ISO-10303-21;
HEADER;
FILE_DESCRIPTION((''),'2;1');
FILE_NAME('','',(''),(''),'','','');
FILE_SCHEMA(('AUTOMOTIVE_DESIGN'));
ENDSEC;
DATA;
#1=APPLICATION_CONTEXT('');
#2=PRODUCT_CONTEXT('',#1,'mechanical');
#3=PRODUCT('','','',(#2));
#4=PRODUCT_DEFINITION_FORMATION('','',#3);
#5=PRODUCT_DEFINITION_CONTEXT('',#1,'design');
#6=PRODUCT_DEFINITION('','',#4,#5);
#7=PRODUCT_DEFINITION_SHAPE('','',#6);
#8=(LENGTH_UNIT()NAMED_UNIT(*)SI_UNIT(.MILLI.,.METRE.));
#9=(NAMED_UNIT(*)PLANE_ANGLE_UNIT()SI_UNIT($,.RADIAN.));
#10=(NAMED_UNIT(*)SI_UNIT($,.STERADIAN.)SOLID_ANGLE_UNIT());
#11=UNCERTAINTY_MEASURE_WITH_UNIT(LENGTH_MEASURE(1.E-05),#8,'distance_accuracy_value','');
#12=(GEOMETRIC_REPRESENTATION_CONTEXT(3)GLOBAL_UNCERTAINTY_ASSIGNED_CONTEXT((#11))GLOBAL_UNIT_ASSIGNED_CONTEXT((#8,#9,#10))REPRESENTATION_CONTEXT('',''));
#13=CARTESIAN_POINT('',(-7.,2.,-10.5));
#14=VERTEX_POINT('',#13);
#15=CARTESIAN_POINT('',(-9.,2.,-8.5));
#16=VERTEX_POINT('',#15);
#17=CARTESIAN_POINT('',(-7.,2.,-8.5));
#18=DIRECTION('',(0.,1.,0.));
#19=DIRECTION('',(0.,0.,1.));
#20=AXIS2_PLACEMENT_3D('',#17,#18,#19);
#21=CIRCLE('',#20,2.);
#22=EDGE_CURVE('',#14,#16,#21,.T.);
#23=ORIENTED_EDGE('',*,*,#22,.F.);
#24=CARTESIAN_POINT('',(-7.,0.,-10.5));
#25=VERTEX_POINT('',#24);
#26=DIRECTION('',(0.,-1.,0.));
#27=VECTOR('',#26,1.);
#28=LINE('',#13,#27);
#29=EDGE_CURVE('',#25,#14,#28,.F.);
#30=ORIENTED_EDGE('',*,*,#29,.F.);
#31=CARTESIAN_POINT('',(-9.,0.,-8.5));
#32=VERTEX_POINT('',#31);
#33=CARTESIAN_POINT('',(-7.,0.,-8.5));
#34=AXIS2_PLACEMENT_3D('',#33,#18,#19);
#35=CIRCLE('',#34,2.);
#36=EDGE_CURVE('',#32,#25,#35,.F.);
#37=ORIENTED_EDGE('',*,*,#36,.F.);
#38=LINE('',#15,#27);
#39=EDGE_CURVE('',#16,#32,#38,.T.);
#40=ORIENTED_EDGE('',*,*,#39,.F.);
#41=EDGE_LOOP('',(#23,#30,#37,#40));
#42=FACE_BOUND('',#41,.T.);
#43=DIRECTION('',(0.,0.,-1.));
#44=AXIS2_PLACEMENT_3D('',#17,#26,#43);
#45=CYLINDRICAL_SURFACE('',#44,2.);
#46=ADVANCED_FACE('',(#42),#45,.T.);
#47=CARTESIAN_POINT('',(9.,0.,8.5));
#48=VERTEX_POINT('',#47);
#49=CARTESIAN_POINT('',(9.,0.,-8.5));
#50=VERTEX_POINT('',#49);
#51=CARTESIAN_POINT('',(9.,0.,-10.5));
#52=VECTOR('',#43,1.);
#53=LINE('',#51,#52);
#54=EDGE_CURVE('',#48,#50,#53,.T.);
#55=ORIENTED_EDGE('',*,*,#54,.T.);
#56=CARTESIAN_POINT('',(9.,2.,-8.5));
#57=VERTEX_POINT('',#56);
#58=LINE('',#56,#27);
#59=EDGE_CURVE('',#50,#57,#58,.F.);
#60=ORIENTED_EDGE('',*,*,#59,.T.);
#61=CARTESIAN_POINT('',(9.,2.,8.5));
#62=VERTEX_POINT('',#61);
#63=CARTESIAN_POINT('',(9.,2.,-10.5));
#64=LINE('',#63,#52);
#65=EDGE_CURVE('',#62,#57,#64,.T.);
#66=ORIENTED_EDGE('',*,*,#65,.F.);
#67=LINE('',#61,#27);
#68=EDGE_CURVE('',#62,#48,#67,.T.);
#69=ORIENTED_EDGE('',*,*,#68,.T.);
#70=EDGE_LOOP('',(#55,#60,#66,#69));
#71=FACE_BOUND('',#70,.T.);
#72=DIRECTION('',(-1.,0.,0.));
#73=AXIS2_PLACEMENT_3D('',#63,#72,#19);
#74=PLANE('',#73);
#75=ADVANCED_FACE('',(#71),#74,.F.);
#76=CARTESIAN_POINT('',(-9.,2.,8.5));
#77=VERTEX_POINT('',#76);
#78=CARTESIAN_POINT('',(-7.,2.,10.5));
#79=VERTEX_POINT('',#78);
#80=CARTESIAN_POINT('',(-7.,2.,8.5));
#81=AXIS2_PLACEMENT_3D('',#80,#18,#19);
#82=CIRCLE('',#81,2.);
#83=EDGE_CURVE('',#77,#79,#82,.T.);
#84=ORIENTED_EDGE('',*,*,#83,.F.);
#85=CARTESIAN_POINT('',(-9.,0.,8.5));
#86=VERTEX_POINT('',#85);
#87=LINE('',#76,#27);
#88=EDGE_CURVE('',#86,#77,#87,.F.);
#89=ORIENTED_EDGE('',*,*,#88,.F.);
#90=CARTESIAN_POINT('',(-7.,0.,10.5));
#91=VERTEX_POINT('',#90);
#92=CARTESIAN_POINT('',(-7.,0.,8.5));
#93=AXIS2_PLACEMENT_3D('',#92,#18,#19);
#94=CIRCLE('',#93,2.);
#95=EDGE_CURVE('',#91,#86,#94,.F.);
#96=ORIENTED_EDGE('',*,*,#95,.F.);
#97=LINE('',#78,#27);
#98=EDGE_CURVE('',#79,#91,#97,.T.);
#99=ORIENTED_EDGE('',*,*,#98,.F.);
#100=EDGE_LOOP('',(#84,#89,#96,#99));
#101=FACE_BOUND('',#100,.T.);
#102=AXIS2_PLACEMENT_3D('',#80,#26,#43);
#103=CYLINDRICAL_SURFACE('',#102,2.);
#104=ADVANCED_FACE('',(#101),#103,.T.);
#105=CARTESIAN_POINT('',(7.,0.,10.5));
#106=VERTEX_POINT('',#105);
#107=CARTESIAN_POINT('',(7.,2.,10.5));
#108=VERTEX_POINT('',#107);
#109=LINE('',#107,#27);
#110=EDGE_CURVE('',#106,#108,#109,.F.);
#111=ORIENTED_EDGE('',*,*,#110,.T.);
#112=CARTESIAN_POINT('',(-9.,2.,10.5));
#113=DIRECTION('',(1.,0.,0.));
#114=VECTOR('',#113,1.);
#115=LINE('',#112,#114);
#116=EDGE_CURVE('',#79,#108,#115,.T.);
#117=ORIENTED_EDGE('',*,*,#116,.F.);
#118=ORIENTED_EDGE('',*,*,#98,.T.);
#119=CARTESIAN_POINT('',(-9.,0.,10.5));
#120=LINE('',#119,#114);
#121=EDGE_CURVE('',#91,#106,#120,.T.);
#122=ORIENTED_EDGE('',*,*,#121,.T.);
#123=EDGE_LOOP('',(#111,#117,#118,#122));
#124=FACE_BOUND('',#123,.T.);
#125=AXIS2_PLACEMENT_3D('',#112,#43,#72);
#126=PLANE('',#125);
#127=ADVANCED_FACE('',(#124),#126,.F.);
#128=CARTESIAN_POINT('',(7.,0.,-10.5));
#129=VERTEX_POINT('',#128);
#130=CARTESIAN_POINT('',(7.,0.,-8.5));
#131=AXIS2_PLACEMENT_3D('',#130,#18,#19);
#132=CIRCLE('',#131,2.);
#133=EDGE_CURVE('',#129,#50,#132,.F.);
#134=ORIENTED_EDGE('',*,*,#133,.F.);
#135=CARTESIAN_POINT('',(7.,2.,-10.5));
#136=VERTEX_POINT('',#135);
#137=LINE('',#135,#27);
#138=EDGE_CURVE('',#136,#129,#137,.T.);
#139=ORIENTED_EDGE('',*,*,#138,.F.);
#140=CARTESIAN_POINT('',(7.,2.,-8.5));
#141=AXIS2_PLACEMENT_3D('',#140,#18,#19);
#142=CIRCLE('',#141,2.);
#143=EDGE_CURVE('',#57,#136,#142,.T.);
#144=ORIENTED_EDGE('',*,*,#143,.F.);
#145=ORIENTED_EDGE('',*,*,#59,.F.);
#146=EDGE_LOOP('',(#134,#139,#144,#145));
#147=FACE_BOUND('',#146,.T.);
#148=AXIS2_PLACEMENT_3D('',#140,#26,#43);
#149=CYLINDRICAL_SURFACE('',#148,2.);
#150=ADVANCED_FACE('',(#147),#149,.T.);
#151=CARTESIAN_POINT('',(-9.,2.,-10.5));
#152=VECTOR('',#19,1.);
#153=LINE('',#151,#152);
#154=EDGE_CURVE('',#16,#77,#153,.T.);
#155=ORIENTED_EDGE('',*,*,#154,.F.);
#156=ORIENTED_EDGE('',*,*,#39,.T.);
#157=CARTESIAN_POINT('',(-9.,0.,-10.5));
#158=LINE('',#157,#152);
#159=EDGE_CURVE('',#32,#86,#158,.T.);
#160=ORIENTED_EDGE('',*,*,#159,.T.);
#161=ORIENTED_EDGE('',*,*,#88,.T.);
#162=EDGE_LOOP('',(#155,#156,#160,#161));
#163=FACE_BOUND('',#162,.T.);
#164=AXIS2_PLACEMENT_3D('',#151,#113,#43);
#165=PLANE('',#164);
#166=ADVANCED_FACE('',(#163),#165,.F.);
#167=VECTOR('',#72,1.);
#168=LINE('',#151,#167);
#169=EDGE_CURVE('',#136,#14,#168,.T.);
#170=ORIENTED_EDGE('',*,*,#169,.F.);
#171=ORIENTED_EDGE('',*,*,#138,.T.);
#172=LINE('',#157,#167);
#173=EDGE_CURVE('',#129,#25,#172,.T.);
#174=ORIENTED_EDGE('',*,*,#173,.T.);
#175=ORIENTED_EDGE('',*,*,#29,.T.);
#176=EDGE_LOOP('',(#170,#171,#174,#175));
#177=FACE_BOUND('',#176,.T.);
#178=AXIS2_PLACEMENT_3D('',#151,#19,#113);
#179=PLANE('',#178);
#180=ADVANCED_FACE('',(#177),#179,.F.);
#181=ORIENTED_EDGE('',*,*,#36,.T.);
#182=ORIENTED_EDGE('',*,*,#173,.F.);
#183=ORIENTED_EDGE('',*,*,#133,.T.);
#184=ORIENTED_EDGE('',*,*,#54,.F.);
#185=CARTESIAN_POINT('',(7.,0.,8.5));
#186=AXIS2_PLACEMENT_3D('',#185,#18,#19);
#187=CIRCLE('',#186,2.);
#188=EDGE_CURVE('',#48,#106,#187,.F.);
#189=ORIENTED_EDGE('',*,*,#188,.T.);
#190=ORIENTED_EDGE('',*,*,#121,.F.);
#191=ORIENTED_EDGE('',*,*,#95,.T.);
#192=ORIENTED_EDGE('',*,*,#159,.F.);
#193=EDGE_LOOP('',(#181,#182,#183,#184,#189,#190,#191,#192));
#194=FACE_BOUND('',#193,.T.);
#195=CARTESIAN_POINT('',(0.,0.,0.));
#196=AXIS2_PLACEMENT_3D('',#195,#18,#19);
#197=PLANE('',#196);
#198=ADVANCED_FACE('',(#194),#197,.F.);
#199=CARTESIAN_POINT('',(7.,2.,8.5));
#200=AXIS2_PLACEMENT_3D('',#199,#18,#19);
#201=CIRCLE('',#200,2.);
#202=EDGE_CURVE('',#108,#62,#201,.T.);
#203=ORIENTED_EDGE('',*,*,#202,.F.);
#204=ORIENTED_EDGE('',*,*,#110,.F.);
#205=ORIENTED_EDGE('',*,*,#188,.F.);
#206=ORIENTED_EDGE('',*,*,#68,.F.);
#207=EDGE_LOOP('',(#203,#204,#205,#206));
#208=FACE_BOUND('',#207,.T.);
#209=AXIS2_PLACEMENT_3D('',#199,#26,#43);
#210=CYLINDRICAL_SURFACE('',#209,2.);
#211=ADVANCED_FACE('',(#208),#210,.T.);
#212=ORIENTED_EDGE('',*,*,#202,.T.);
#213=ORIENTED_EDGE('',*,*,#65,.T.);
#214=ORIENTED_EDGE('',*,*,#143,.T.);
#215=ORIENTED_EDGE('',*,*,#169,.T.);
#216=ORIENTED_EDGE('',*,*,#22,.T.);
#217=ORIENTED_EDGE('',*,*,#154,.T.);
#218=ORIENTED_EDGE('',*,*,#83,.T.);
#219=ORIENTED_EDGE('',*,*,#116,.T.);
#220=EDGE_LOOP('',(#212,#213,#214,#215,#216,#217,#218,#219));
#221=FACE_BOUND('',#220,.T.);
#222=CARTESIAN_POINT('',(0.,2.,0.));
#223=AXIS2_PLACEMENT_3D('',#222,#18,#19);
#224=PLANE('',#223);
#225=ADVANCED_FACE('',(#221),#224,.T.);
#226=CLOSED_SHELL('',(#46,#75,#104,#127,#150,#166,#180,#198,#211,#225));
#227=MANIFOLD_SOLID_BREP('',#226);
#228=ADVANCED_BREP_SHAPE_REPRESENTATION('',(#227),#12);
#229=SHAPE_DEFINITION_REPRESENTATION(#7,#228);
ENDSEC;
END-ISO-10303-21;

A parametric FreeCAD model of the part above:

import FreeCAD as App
import Part
import Sketcher
Q = App.Units.Quantity


def edges_at(feature, points):
    """Names of the edges that pass closest to the given points."""
    edges = feature.Shape.Edges
    near = lambda p: min(range(len(edges)), key=lambda i: edges[i].distToShape(Part.Vertex(*p))[0])
    return sorted({f"Edge{near(p) + 1}" for p in points})


def add_polygon(sketch, points):
    """Adds a closed chain of lines whose ends are joined by coincident constraints."""
    first, n = sketch.GeometryCount, len(points)
    for a, b in zip(points, points[1:] + points[:1]):
        sketch.addGeometry(Part.LineSegment(App.Vector(*a, 0), App.Vector(*b, 0)), False)
    for i in range(n):
        sketch.addConstraint(Sketcher.Constraint("Coincident", first + i, 2, first + (i + 1) % n, 1))

doc = App.newDocument("Part")
body = doc.addObject("PartDesign::Body", "Body")

# Sketch on XZ plane
sketch1 = doc.addObject("Sketcher::SketchObject", "Sketch")
body.addObject(sketch1)
sketch1.AttachmentSupport = (doc.XZ_Plane, [""])
sketch1.MapMode = "FlatFace"
add_polygon(sketch1, [(-9, -10), (-9, 10), (9, 10), (9, -10)])  # lines 0-3
sketch1.addConstraint(Sketcher.Constraint("Vertical", 0))
sketch1.addConstraint(Sketcher.Constraint("Horizontal", 1))
sketch1.addConstraint(Sketcher.Constraint("Vertical", 2))
sketch1.addConstraint(Sketcher.Constraint("Horizontal", 3))
sketch1.addConstraint(Sketcher.Constraint("Symmetric", 0, 2, 2, 2, -1, 1))
sketch1.addConstraint(Sketcher.Constraint("DistanceX", 1, 1, 1, 2, Q("18 mm")))
sketch1.addConstraint(Sketcher.Constraint("DistanceY", 0, 1, 0, 2, Q("21 mm")))
pad1 = doc.addObject("PartDesign::Pad", "Pad")
body.addObject(pad1)
pad1.Profile = sketch1
pad1.Length = 2
pad1.Reversed = True
doc.recompute()

fillet = doc.addObject("PartDesign::Fillet", "Fillet")
body.addObject(fillet)
fillet.Base = (pad1, edges_at(pad1, [
    (9, 1, 10.5),
    (-9, 1, 10.5),
    (-9, 1, -10.5),
    (9, 1, -10.5),
]))
fillet.Radius = 2

doc.recompute()
